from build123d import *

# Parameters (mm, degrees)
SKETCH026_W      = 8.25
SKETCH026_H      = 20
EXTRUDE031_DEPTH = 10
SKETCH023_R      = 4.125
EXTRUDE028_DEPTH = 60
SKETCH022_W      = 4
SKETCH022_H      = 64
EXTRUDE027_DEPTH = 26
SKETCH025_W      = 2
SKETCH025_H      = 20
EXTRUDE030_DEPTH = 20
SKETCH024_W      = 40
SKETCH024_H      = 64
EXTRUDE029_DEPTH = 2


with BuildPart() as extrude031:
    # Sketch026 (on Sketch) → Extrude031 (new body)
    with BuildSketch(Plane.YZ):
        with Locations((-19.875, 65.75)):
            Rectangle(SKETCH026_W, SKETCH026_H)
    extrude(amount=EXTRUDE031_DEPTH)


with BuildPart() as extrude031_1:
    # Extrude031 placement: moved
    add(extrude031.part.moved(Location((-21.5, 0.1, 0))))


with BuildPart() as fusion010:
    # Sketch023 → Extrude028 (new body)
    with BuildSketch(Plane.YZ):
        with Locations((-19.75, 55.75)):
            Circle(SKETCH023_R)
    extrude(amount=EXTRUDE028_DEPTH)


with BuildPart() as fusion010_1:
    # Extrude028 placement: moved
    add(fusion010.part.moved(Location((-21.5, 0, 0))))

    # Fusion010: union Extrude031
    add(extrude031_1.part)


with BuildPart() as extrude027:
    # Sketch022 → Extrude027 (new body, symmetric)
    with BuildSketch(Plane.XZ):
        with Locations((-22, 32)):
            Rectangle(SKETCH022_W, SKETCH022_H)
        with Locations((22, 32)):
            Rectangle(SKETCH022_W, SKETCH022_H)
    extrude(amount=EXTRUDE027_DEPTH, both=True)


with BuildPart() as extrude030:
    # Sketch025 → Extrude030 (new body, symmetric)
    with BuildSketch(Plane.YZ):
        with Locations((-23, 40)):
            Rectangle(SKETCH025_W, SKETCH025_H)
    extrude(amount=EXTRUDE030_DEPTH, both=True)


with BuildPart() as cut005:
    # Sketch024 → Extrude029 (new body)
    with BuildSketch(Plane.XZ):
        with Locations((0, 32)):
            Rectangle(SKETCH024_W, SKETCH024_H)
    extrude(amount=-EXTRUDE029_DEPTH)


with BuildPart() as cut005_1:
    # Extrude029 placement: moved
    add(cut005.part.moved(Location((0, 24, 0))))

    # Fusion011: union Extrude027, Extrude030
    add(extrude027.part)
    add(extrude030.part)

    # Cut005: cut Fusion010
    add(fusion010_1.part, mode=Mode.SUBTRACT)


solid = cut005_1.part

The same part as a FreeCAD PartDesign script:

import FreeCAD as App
import Part
import Sketcher

doc = App.newDocument("Part")
body = doc.addObject("PartDesign::Body", "Body")

# Sketch on YZ plane
sketch1 = body.newObject("Sketcher::SketchObject", "Sketch")
sketch1.AttachmentSupport = (doc.getObject("YZ_Plane"), [""])
sketch1.MapMode = "FlatFace"
sketch1.addGeometry([
    Part.LineSegment(App.Vector(-24, 76, 0), App.Vector(-24, 56, 0)),
    Part.LineSegment(App.Vector(-24, 56, 0), App.Vector(-16, 56, 0)),
    Part.LineSegment(App.Vector(-16, 56, 0), App.Vector(-16, 76, 0)),
    Part.LineSegment(App.Vector(-16, 76, 0), App.Vector(-24, 76, 0)),
], False)
sketch1.addConstraint([
    Sketcher.Constraint("Coincident", 0, 2, 1, 1),
    Sketcher.Constraint("Coincident", 1, 2, 2, 1),
    Sketcher.Constraint("Coincident", 2, 2, 3, 1),
    Sketcher.Constraint("Coincident", 3, 2, 0, 1),
    Sketcher.Constraint("Vertical", 0),
    Sketcher.Constraint("Horizontal", 1),
    Sketcher.Constraint("Vertical", 2),
    Sketcher.Constraint("Horizontal", 3),
    Sketcher.Constraint("DistanceY", 0, 2, 0, 1, 20.0),
    Sketcher.Constraint("DistanceX", 0, 2, -1, 1, 24.0),
    Sketcher.Constraint("DistanceX", 1, 1, 1, 2, 8.25),
    Sketcher.Constraint("DistanceY", -1, 1, 0, 2, 55.75),
])
pad1 = body.newObject("PartDesign::Pad", "Pad")
pad1.Profile = sketch1
pad1.Length = 10
body2 = doc.addObject("PartDesign::Body", "Body001")
doc.recompute()

body.Placement = App.Placement(App.Vector(-21.5, 0.1, 0), App.Rotation(App.Vector(0, 0, 1), 0))
boolean = body2.newObject("PartDesign::Boolean", "Boolean")
boolean.Type = "Fuse"
boolean.addObjects([body])
body3 = doc.addObject("PartDesign::Body", "Body002")

# Sketch on YZ plane
sketch2 = body3.newObject("Sketcher::SketchObject", "Sketch001")
sketch2.AttachmentSupport = (doc.getObject("YZ_Plane002"), [""])
sketch2.MapMode = "FlatFace"
sketch2.addGeometry(Part.Circle(App.Vector(-19.8, 55.8, 0), App.Vector(0, 0, 1), 4.1), False)
sketch2.addConstraint([
    Sketcher.Constraint("Diameter", 0, 8.25),
    Sketcher.Constraint("DistanceX", 0, 3, -1, 1, 19.75),
    Sketcher.Constraint("DistanceY", -1, 1, 0, 3, 55.75),
])
pad2 = body3.newObject("PartDesign::Pad", "Pad001")
pad2.Profile = sketch2
pad2.Length = 60
body4 = doc.addObject("PartDesign::Body", "Body003")
doc.recompute()

body3.Placement = App.Placement(App.Vector(-21.5, 0, 0), App.Rotation(App.Vector(0, 0, 1), 0))
boolean2 = body4.newObject("PartDesign::Boolean", "Boolean001")
boolean2.Type = "Fuse"
boolean2.addObjects([body3])
doc.recompute()

boolean3 = body4.newObject("PartDesign::Boolean", "Boolean002")
boolean3.Type = "Fuse"
boolean3.addObjects([body2])
body5 = doc.addObject("PartDesign::Body", "Body004")
body5.AllowCompound = True

# Sketch on XZ plane
sketch3 = body5.newObject("Sketcher::SketchObject", "Sketch002")
sketch3.AttachmentSupport = (doc.getObject("XZ_Plane004"), [""])
sketch3.MapMode = "FlatFace"
sketch3.addGeometry([
    Part.LineSegment(App.Vector(-24, 64, 0), App.Vector(-24, 0, 0)),  # 0
    Part.LineSegment(App.Vector(-24, 0, 0), App.Vector(-20, 0, 0)),  # 1
    Part.LineSegment(App.Vector(-20, 0, 0), App.Vector(-20, 64, 0)),  # 2
    Part.LineSegment(App.Vector(-20, 64, 0), App.Vector(-24, 64, 0)),  # 3
    Part.LineSegment(App.Vector(20, 64, 0), App.Vector(20, 0, 0)),  # 4
    Part.LineSegment(App.Vector(20, 0, 0), App.Vector(24, 0, 0)),  # 5
    Part.LineSegment(App.Vector(24, 0, 0), App.Vector(24, 64, 0)),  # 6
    Part.LineSegment(App.Vector(24, 64, 0), App.Vector(20, 64, 0)),  # 7
], False)
sketch3.addConstraint([
    Sketcher.Constraint("Coincident", 0, 2, 1, 1),
    Sketcher.Constraint("Coincident", 1, 2, 2, 1),
    Sketcher.Constraint("Coincident", 2, 2, 3, 1),
    Sketcher.Constraint("Coincident", 3, 2, 0, 1),
    Sketcher.Constraint("Coincident", 4, 2, 5, 1),
    Sketcher.Constraint("Coincident", 5, 2, 6, 1),
    Sketcher.Constraint("Coincident", 6, 2, 7, 1),
    Sketcher.Constraint("Coincident", 7, 2, 4, 1),
    Sketcher.Constraint("Vertical", 0),
    Sketcher.Constraint("Horizontal", 1),
    Sketcher.Constraint("Vertical", 2),
    Sketcher.Constraint("Horizontal", 3),
    Sketcher.Constraint("Vertical", 4),
    Sketcher.Constraint("Horizontal", 5),
    Sketcher.Constraint("Vertical", 6),
    Sketcher.Constraint("Horizontal", 7),
    Sketcher.Constraint("Symmetric", 1, 2, 4, 2, -1, 1),
    Sketcher.Constraint("Symmetric", 0, 2, 5, 2, -2),
    Sketcher.Constraint("Horizontal", 3, 2, 6, 2),
    Sketcher.Constraint("DistanceX", 1, 1, 1, 2, 4.0),
    Sketcher.Constraint("DistanceY", 0, 2, 0, 1, 64.0),
    Sketcher.Constraint("DistanceX", 0, 2, -1, 1, 24.0),
])
pad3 = body5.newObject("PartDesign::Pad", "Pad002")
pad3.Profile = sketch3
pad3.Length = 52
pad3.Midplane = True
body6 = doc.addObject("PartDesign::Body", "Body005")

# Sketch on YZ plane
sketch4 = body6.newObject("Sketcher::SketchObject", "Sketch003")
sketch4.AttachmentSupport = (doc.getObject("YZ_Plane005"), [""])
sketch4.MapMode = "FlatFace"
sketch4.addGeometry([
    Part.LineSegment(App.Vector(-24, 50, 0), App.Vector(-24, 30, 0)),
    Part.LineSegment(App.Vector(-24, 30, 0), App.Vector(-22, 30, 0)),
    Part.LineSegment(App.Vector(-22, 30, 0), App.Vector(-22, 50, 0)),
    Part.LineSegment(App.Vector(-22, 50, 0), App.Vector(-24, 50, 0)),
], False)
sketch4.addConstraint([
    Sketcher.Constraint("Coincident", 0, 2, 1, 1),
    Sketcher.Constraint("Coincident", 1, 2, 2, 1),
    Sketcher.Constraint("Coincident", 2, 2, 3, 1),
    Sketcher.Constraint("Coincident", 3, 2, 0, 1),
    Sketcher.Constraint("Vertical", 0),
    Sketcher.Constraint("Horizontal", 1),
    Sketcher.Constraint("Vertical", 2),
    Sketcher.Constraint("Horizontal", 3),
    Sketcher.Constraint("DistanceX", 1, 1, 1, 2, 2.0),
    Sketcher.Constraint("DistanceY", 0, 2, 0, 1, 20.0),
    Sketcher.Constraint("DistanceX", 0, 2, -1, 1, 24.0),
    Sketcher.Constraint("DistanceY", -1, 1, 0, 2, 30.0),
])
pad4 = body6.newObject("PartDesign::Pad", "Pad003")
pad4.Profile = sketch4
pad4.Length = 40
pad4.Midplane = True
body7 = doc.addObject("PartDesign::Body", "Body006")

# Sketch on XZ plane
sketch5 = body7.newObject("Sketcher::SketchObject", "Sketch004")
sketch5.AttachmentSupport = (doc.getObject("XZ_Plane006"), [""])
sketch5.MapMode = "FlatFace"
sketch5.addGeometry([
    Part.LineSegment(App.Vector(-20, 64, 0), App.Vector(-20, 0, 0)),
    Part.LineSegment(App.Vector(-20, 0, 0), App.Vector(20, 0, 0)),
    Part.LineSegment(App.Vector(20, 0, 0), App.Vector(20, 64, 0)),
    Part.LineSegment(App.Vector(20, 64, 0), App.Vector(-20, 64, 0)),
], False)
sketch5.addConstraint([
    Sketcher.Constraint("Coincident", 0, 2, 1, 1),
    Sketcher.Constraint("Coincident", 1, 2, 2, 1),
    Sketcher.Constraint("Coincident", 2, 2, 3, 1),
    Sketcher.Constraint("Coincident", 3, 2, 0, 1),
    Sketcher.Constraint("Vertical", 0),
    Sketcher.Constraint("Horizontal", 1),
    Sketcher.Constraint("Vertical", 2),
    Sketcher.Constraint("Horizontal", 3),
    Sketcher.Constraint("Symmetric", 0, 2, 1, 2, -1, 1),
    Sketcher.Constraint("DistanceX", 1, 1, 1, 2, 40.0),
    Sketcher.Constraint("DistanceY", 0, 2, 0, 1, 64.0),
])
pad5 = body7.newObject("PartDesign::Pad", "Pad004")
pad5.Profile = sketch5
pad5.Length = 2
pad5.Reversed = True
body8 = doc.addObject("PartDesign::Body", "Body007")
doc.recompute()

body7.Placement = App.Placement(App.Vector(0, 24, 0), App.Rotation(App.Vector(0, 0, 1), 0))
boolean4 = body8.newObject("PartDesign::Boolean", "Boolean003")
boolean4.Type = "Fuse"
boolean4.addObjects([body7])
doc.recompute()

boolean5 = body8.newObject("PartDesign::Boolean", "Boolean004")
boolean5.Type = "Fuse"
boolean5.addObjects([body5])
doc.recompute()

boolean6 = body8.newObject("PartDesign::Boolean", "Boolean005")
boolean6.Type = "Fuse"
boolean6.addObjects([body6])
doc.recompute()

boolean7 = body8.newObject("PartDesign::Boolean", "Boolean006")
boolean7.Type = "Cut"
boolean7.addObjects([body4])

doc.recompute()
